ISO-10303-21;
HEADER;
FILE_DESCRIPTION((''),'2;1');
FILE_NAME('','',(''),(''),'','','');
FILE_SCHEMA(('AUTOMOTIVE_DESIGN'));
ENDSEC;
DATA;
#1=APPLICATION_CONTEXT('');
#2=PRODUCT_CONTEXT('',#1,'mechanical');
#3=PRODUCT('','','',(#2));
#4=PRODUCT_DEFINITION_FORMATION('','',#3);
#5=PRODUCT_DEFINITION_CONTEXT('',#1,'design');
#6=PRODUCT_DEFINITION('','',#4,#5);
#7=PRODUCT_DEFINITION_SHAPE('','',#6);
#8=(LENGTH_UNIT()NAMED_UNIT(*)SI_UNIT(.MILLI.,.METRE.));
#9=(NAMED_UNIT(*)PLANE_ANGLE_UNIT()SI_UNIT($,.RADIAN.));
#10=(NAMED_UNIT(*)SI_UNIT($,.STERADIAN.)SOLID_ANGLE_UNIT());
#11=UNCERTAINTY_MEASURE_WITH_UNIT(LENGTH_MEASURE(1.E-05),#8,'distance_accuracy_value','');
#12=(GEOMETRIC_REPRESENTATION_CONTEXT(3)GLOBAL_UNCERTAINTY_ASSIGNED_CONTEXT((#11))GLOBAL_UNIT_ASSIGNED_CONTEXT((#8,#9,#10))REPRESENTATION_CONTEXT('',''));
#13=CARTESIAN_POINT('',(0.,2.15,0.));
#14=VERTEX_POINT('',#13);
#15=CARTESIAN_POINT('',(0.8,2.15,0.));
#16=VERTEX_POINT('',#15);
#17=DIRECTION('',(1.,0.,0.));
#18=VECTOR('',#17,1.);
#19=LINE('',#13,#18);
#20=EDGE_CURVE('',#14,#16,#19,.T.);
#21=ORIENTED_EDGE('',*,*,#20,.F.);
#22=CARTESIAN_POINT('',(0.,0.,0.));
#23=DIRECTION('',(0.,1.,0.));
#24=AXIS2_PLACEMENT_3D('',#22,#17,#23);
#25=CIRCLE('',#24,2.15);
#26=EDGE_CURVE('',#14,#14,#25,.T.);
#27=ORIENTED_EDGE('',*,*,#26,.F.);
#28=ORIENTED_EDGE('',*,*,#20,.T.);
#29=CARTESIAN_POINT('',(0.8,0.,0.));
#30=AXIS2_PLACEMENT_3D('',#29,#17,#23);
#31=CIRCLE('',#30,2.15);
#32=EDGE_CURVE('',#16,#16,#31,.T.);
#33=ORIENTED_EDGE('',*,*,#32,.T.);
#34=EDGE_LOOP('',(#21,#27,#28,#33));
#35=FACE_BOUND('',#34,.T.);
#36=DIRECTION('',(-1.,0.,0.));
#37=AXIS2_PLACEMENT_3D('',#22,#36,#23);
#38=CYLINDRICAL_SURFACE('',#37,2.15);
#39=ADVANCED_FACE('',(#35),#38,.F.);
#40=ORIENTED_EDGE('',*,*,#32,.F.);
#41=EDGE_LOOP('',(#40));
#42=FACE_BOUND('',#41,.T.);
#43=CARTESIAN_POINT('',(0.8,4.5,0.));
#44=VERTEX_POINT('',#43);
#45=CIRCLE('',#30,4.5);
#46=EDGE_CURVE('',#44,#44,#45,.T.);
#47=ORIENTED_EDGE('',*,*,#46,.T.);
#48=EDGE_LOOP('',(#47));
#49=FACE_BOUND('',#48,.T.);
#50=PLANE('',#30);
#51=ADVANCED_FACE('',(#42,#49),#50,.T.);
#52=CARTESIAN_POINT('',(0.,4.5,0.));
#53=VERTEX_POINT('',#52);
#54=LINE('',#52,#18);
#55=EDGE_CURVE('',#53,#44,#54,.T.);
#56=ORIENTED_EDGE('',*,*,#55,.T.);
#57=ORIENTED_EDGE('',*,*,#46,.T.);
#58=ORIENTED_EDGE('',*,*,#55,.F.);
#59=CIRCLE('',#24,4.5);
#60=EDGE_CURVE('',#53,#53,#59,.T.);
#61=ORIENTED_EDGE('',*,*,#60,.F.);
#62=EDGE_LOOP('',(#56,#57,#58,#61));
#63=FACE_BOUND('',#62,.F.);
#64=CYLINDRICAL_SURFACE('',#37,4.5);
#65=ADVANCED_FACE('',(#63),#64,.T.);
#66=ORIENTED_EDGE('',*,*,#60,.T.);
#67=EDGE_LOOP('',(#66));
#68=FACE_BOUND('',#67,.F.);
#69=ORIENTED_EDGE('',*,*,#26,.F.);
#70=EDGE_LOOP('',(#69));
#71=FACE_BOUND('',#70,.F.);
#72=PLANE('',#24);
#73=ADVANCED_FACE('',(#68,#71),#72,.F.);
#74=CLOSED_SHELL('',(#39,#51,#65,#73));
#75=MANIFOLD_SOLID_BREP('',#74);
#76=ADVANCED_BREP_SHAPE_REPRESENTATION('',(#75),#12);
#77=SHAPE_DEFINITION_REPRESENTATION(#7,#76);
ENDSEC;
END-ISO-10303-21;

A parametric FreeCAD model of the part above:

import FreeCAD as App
import Part
import Sketcher
from FreeCAD import Vector
Q = App.Units.Quantity

doc = App.newDocument("Part")
body = doc.addObject("PartDesign::Body", "Body")

sketch1 = doc.addObject("Sketcher::SketchObject", "Sketch")
body.addObject(sketch1)
sketch1.AttachmentSupport = (doc.YZ_Plane, [""])
sketch1.MapMode = "FlatFace"
sketch1.addGeometry([
    Part.Circle(Vector(0, 0, 0), Vector(0, 0, 1), 4.5),
    Part.Circle(Vector(0, 0, 0), Vector(0, 0, 1), 2.15),
], False)
sketch1.addConstraint([
    Sketcher.Constraint("Coincident", 0, 3, -1, 1),
    Sketcher.Constraint("Coincident", 1, 3, -1, 1),
    Sketcher.Constraint("Diameter", 0, Q("9 mm")),
    Sketcher.Constraint("Diameter", 1, Q("4.3 mm")),
])
pad1 = doc.addObject("PartDesign::Pad", "Pad")
body.addObject(pad1)
pad1.Profile = sketch1
pad1.Length = 0.8

doc.recompute()
